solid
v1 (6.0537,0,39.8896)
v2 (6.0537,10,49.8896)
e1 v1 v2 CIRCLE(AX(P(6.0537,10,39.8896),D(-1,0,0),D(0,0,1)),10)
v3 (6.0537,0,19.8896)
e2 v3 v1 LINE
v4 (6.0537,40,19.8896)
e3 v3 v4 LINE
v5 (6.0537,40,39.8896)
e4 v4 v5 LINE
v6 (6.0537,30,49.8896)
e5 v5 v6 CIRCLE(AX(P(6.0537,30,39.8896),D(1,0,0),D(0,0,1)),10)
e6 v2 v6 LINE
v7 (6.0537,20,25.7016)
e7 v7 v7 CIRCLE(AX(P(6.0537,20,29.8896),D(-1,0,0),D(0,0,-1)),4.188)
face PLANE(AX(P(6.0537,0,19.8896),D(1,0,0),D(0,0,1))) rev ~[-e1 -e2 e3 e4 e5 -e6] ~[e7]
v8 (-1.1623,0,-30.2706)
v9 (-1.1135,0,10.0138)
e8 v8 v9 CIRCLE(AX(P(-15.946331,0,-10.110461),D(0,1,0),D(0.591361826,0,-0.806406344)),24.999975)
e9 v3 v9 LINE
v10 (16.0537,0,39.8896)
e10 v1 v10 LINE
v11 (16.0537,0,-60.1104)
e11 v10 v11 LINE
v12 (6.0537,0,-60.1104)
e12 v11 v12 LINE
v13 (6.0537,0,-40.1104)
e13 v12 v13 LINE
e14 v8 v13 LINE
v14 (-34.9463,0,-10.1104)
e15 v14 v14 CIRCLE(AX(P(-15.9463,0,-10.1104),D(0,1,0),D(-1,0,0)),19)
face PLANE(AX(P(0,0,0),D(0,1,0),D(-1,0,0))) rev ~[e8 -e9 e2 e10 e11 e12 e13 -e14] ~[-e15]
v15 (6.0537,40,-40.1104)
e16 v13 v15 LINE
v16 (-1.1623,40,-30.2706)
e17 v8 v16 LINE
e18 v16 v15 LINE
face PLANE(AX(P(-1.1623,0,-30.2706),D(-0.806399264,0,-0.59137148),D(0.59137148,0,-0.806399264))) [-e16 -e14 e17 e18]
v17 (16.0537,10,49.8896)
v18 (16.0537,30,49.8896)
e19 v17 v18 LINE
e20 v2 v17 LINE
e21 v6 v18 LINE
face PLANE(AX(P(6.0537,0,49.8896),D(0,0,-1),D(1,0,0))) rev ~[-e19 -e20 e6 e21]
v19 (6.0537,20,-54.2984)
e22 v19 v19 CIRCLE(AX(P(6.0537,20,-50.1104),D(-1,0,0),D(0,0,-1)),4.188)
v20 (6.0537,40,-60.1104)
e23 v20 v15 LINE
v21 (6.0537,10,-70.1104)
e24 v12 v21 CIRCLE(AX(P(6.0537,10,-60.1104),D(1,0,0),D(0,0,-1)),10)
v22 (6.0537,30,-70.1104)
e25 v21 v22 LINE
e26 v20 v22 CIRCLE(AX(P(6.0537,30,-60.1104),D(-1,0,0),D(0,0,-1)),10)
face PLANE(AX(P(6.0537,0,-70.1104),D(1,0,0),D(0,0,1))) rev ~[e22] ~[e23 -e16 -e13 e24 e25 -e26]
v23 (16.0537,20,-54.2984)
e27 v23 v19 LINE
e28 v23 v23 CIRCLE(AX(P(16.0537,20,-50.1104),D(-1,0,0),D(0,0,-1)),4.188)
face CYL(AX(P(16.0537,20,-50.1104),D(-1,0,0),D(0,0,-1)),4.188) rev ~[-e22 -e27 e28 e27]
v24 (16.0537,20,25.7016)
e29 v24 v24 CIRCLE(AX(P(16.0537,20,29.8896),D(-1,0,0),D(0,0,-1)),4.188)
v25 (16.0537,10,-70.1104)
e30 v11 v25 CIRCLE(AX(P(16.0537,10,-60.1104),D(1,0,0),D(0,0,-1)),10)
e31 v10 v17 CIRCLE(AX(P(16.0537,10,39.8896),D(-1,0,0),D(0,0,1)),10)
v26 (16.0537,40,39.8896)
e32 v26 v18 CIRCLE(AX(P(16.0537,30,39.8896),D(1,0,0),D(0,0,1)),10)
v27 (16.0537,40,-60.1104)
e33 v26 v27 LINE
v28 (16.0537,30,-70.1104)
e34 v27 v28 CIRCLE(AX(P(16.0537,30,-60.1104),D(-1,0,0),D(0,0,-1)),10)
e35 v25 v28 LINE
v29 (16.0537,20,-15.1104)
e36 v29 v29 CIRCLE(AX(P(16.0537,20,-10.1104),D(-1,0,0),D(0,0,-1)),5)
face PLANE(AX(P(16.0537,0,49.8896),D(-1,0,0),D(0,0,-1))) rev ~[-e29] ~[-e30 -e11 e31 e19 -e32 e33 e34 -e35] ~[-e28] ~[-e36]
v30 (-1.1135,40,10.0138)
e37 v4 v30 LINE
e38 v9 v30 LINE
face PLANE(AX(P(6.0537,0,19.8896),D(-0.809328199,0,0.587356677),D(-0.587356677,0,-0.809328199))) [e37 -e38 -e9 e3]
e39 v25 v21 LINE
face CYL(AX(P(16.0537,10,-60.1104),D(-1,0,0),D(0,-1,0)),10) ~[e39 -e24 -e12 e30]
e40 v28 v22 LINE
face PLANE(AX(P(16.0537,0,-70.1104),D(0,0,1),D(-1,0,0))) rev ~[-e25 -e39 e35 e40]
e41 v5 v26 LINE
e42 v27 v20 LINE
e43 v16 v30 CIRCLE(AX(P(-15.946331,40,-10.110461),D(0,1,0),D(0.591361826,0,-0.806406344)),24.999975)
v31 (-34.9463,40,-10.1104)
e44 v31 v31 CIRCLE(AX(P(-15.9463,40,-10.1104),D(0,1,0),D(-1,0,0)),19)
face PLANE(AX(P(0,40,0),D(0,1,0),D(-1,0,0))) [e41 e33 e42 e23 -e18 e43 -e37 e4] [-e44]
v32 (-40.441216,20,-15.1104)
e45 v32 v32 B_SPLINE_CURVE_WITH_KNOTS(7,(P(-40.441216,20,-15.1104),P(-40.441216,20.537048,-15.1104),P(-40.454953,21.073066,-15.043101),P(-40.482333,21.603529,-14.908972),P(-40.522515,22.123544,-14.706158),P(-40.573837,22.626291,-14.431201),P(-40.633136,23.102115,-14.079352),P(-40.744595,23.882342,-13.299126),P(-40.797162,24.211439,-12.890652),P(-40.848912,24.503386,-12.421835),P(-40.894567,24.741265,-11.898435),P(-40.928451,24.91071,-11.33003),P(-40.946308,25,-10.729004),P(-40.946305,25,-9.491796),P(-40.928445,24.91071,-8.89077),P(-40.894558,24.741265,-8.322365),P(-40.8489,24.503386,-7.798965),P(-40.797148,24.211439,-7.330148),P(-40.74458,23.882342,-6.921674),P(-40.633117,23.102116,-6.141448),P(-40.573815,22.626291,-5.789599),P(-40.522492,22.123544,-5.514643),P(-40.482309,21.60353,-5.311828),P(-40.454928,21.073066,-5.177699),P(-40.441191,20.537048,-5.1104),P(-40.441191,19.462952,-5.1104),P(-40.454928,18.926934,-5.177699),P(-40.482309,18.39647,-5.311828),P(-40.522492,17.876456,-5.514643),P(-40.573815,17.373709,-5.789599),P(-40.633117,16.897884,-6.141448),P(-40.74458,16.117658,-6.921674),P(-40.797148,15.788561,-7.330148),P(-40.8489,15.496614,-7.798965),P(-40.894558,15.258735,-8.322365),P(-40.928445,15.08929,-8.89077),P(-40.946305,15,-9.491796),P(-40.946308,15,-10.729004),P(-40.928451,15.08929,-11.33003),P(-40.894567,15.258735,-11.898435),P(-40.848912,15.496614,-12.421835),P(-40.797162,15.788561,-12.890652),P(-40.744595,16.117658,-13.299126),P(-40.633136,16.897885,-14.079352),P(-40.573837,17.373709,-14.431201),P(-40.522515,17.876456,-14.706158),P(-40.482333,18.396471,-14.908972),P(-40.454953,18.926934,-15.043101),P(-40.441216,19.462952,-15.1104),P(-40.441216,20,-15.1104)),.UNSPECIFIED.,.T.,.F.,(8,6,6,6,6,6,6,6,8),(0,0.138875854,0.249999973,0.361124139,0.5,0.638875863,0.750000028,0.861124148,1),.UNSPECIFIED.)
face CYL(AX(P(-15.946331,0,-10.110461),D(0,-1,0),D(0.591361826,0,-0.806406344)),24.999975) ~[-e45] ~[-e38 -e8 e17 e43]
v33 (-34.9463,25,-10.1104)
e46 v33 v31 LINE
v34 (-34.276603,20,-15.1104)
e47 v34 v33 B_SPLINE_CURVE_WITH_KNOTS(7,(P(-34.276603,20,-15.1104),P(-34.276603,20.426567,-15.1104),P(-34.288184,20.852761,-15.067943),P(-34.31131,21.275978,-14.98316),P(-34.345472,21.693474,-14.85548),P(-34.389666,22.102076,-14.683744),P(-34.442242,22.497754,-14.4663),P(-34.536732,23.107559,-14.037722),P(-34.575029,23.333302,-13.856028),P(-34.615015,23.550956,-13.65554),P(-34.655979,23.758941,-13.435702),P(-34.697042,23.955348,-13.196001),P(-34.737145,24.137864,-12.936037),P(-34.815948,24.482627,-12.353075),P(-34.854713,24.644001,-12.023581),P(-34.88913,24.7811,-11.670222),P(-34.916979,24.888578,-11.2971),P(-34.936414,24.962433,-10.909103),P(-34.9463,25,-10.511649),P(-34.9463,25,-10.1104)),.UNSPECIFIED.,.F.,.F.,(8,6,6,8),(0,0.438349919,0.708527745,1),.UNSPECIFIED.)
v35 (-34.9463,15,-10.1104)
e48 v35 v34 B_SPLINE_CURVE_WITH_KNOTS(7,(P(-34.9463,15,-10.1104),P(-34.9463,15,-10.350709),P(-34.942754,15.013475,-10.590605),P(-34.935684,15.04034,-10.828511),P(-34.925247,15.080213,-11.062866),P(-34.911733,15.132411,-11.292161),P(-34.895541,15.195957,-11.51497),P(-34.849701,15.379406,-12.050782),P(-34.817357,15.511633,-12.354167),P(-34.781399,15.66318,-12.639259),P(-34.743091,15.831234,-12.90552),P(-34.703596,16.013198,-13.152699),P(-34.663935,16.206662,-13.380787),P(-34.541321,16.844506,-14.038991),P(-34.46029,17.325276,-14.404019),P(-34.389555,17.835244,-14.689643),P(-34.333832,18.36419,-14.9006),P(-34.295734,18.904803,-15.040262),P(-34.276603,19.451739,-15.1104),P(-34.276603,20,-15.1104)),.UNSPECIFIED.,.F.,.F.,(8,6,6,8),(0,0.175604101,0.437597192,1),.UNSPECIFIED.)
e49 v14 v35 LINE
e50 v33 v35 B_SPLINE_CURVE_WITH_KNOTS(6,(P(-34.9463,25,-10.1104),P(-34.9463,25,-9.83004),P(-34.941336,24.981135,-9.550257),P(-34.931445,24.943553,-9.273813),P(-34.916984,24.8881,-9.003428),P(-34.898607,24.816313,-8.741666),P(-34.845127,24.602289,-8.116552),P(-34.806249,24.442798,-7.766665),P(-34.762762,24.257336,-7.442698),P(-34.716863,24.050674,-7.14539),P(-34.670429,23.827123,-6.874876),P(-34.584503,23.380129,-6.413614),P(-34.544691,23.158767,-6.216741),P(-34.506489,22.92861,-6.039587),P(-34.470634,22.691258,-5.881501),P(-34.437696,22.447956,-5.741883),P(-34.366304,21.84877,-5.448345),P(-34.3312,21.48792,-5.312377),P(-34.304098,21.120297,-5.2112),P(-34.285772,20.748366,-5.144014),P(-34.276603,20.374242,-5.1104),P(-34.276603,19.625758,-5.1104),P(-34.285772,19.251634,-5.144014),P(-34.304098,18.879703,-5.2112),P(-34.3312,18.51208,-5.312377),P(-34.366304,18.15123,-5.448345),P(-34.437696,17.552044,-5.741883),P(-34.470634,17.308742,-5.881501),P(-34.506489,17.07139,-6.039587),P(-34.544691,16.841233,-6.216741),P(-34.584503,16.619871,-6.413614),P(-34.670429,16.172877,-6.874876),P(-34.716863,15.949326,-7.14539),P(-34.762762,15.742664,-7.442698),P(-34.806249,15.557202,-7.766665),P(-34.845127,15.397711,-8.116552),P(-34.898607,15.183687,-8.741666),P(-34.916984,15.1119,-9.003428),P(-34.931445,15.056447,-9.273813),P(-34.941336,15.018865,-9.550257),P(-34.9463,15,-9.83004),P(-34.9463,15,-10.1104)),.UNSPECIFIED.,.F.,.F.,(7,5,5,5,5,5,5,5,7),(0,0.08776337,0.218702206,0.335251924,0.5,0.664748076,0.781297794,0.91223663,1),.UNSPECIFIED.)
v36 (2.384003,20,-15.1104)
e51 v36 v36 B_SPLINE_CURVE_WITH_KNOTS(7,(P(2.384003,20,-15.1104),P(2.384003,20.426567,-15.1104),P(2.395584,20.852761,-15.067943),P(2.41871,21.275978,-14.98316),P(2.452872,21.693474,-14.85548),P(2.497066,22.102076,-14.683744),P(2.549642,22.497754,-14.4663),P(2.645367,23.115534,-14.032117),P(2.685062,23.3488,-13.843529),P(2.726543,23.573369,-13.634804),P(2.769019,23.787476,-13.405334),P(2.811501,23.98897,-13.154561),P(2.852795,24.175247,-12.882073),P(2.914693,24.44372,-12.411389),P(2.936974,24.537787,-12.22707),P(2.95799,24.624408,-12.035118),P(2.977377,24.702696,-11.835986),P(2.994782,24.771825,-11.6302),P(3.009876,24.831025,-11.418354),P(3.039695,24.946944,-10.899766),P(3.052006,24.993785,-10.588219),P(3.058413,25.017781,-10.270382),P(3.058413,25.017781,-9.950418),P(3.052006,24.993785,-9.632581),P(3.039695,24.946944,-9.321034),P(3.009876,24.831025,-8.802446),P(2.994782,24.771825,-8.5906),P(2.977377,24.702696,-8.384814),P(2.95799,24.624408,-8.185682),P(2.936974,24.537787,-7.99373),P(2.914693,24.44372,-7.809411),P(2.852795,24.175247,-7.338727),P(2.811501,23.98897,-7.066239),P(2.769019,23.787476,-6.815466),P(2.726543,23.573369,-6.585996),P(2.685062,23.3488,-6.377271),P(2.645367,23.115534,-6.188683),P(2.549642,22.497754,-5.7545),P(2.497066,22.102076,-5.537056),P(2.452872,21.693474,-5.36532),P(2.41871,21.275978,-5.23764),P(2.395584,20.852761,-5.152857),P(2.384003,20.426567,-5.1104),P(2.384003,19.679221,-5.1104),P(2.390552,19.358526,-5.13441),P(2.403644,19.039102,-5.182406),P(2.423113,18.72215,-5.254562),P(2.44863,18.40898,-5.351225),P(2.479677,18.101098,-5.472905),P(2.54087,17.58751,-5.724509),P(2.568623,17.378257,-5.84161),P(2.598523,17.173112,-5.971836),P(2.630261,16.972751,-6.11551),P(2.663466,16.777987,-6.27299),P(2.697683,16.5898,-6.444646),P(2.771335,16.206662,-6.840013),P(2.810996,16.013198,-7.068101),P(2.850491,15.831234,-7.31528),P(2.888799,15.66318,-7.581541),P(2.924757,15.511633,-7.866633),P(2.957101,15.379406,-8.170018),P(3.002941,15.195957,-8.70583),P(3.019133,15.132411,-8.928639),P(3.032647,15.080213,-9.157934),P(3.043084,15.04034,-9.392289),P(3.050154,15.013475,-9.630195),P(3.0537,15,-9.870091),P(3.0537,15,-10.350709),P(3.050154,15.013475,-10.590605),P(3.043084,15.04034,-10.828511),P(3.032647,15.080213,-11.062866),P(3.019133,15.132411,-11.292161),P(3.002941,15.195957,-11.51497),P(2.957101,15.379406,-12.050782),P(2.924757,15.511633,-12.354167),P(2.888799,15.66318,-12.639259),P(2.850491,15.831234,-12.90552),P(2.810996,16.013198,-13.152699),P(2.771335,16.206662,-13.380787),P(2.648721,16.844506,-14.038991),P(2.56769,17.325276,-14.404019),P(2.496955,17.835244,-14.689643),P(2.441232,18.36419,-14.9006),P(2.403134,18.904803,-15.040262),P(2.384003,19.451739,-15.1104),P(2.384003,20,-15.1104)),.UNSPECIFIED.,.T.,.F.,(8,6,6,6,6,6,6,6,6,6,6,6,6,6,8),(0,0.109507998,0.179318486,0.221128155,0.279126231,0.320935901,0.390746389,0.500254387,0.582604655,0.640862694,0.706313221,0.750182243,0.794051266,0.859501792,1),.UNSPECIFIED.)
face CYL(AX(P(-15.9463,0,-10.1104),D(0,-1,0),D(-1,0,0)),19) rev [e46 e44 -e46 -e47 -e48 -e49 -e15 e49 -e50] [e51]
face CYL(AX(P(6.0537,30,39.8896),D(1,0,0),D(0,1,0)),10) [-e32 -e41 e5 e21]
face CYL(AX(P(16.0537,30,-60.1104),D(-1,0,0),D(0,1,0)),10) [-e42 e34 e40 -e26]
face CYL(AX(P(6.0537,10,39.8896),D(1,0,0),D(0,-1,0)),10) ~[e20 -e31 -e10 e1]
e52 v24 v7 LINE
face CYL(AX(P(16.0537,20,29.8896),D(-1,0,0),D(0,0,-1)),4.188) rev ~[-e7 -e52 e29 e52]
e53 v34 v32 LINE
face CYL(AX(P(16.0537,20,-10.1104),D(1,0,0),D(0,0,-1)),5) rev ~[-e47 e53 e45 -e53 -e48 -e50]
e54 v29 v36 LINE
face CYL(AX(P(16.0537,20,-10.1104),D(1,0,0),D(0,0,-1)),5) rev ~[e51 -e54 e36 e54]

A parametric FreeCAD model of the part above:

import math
import FreeCAD as App
import Part
import Sketcher

V = App.Vector
Q = App.Units.Quantity


def edges_at(feature, points):
    """Names of the edges that pass closest to the given points."""
    edges = feature.Shape.Edges
    near = lambda p: min(range(len(edges)), key=lambda i: edges[i].distToShape(Part.Vertex(*p))[0])
    return sorted({f"Edge{near(p) + 1}" for p in points})

doc = App.newDocument("Part")
body = doc.addObject("PartDesign::Body", "Body")

sketch1 = body.newObject("Sketcher::SketchObject", "Sketch")
sketch1.AttachmentSupport = (doc.getObject("XZ_Plane"), [""])
sketch1.MapMode = "FlatFace"
sketch1.addGeometry([
    Part.LineSegment(V(6, -40, 0), V(-1, -30, 0)),
    Part.ArcOfCircle(Part.Circle(V(-16, -10, 0), V(0, 0, 1), 25), math.radians(54), math.radians(306)),
    Part.LineSegment(V(-1, 10, 0), V(6, 20, 0)),
    Part.LineSegment(V(6, 20, 0), V(6, 50, 0)),
    Part.LineSegment(V(6, 50, 0), V(16, 50, 0)),
    Part.LineSegment(V(16, 50, 0), V(16, -70, 0)),
    Part.LineSegment(V(16, -70, 0), V(6, -70, 0)),
    Part.LineSegment(V(6, -70, 0), V(6, -40, 0)),
    Part.Circle(V(-16, -10, 0), V(0, 0, 1), 19),
], False)
sketch1.addConstraint([
    Sketcher.Constraint("Coincident", 0, 2, 1, 2),
    Sketcher.Constraint("Coincident", 1, 1, 2, 1),
    Sketcher.Constraint("Coincident", 2, 2, 3, 1),
    Sketcher.Constraint("Coincident", 3, 2, 4, 1),
    Sketcher.Constraint("Coincident", 4, 2, 5, 1),
    Sketcher.Constraint("Coincident", 5, 2, 6, 1),
    Sketcher.Constraint("Coincident", 6, 2, 7, 1),
    Sketcher.Constraint("Coincident", 7, 2, 0, 1),
    Sketcher.Constraint("Vertical", 3),
    Sketcher.Constraint("Horizontal", 4),
    Sketcher.Constraint("Vertical", 5),
    Sketcher.Constraint("Horizontal", 6),
    Sketcher.Constraint("Vertical", 7),
    Sketcher.Constraint("Coincident", 8, 3, 1, 3),
    Sketcher.Constraint("Vertical", 3, 2, 6, 2),
    Sketcher.Constraint("Equal", 3, 7),
    Sketcher.Constraint("Diameter", 8, Q("38 mm")),
    Sketcher.Constraint("Radius", 1, Q("25 mm")),
    Sketcher.Constraint("DistanceX", 4, 1, 4, 2, Q("10 mm")),
    Sketcher.Constraint("DistanceY", 5, 2, 5, 1, Q("120 mm")),
    Sketcher.Constraint("DistanceY", 3, 1, 3, 2, Q("30 mm")),
    Sketcher.Constraint("DistanceX", 1, 3, 2, 2, Q("22 mm")),
    Sketcher.Constraint("DistanceY", 1, 3, 2, 2, Q("30 mm")),
    Sketcher.Constraint("Angle", 2, Q("54.0303 deg")),
    Sketcher.Constraint("DistanceX", 1, 3, 0, 2, Q("14.784 mm")),
    Sketcher.Constraint("DistanceX", 1, 3, -1, 1, Q("15.9463 mm")),
    Sketcher.Constraint("DistanceY", 1, 3, -1, 1, Q("10.1104 mm")),
])
pad1 = body.newObject("PartDesign::Pad", "Pad")
pad1.Profile = sketch1
pad1.Length = 40
pad1.Reversed = True

sketch2 = body.newObject("Sketcher::SketchObject", "Sketch001")
sketch2.AttachmentSupport = (doc.getObject("YZ_Plane"), [""])
sketch2.MapMode = "FlatFace"
sketch2.AttachmentOffset = App.Placement(V(0, 0, 16.0537), App.Rotation())
sketch2.addGeometry([
    Part.Circle(V(20, 29.9, 0), V(0, 0, 1), 4.2),
    Part.Circle(V(20, -50.1, 0), V(0, 0, 1), 4.2),
], False)
sketch2.addConstraint([
    Sketcher.Constraint("Equal", 0, 1),
    Sketcher.Constraint("Vertical", 0, 3, 1, 3),
    Sketcher.Constraint("Diameter", 0, Q("8.376 mm")),
    Sketcher.Constraint("DistanceX", -1, 1, 0, 3, Q("20 mm")),
    Sketcher.Constraint("DistanceY", 1, 3, 0, 3, Q("80 mm")),
    Sketcher.Constraint("DistanceY", -1, 1, 0, 3, Q("29.8896 mm")),
])
doc.recompute()
hole = body.newObject("PartDesign::Hole", "Hole")
hole.Profile = sketch2
hole.ThreadType = "None"
hole.Diameter = 8.376
hole.DepthType = "Dimension"
hole.Depth = 27.3
hole.DrillPoint = "Angled"
hole.DrillPointAngle = 118
doc.recompute()

fillet = body.newObject("PartDesign::Fillet", "Fillet")
fillet.Base = (hole, edges_at(hole, [
    (11.054, 40, 49.89),
    (11.054, 0, 49.89),
    (11.054, 40, -70.11),
    (11.054, 0, -70.11),
]))
fillet.Radius = 10

sketch3 = body.newObject("Sketcher::SketchObject", "Sketch002")
sketch3.AttachmentSupport = (doc.getObject("YZ_Plane"), [""])
sketch3.MapMode = "FlatFace"
sketch3.AttachmentOffset = App.Placement(V(0, 0, 16.0537), App.Rotation())
sketch3.addGeometry(Part.Circle(V(20, -10, 0), V(0, 0, 1), 5), False)
sketch3.addConstraint([
    Sketcher.Constraint("Diameter", 0, Q("10 mm")),
    Sketcher.Constraint("DistanceX", -1, 1, 0, 3, Q("20 mm")),
    Sketcher.Constraint("DistanceY", 0, 3, -1, 1, Q("10.1104 mm")),
])
pocket1 = body.newObject("PartDesign::Pocket", "Pocket")
pocket1.Profile = sketch3
pocket1.Length = 100

doc.recompute()
